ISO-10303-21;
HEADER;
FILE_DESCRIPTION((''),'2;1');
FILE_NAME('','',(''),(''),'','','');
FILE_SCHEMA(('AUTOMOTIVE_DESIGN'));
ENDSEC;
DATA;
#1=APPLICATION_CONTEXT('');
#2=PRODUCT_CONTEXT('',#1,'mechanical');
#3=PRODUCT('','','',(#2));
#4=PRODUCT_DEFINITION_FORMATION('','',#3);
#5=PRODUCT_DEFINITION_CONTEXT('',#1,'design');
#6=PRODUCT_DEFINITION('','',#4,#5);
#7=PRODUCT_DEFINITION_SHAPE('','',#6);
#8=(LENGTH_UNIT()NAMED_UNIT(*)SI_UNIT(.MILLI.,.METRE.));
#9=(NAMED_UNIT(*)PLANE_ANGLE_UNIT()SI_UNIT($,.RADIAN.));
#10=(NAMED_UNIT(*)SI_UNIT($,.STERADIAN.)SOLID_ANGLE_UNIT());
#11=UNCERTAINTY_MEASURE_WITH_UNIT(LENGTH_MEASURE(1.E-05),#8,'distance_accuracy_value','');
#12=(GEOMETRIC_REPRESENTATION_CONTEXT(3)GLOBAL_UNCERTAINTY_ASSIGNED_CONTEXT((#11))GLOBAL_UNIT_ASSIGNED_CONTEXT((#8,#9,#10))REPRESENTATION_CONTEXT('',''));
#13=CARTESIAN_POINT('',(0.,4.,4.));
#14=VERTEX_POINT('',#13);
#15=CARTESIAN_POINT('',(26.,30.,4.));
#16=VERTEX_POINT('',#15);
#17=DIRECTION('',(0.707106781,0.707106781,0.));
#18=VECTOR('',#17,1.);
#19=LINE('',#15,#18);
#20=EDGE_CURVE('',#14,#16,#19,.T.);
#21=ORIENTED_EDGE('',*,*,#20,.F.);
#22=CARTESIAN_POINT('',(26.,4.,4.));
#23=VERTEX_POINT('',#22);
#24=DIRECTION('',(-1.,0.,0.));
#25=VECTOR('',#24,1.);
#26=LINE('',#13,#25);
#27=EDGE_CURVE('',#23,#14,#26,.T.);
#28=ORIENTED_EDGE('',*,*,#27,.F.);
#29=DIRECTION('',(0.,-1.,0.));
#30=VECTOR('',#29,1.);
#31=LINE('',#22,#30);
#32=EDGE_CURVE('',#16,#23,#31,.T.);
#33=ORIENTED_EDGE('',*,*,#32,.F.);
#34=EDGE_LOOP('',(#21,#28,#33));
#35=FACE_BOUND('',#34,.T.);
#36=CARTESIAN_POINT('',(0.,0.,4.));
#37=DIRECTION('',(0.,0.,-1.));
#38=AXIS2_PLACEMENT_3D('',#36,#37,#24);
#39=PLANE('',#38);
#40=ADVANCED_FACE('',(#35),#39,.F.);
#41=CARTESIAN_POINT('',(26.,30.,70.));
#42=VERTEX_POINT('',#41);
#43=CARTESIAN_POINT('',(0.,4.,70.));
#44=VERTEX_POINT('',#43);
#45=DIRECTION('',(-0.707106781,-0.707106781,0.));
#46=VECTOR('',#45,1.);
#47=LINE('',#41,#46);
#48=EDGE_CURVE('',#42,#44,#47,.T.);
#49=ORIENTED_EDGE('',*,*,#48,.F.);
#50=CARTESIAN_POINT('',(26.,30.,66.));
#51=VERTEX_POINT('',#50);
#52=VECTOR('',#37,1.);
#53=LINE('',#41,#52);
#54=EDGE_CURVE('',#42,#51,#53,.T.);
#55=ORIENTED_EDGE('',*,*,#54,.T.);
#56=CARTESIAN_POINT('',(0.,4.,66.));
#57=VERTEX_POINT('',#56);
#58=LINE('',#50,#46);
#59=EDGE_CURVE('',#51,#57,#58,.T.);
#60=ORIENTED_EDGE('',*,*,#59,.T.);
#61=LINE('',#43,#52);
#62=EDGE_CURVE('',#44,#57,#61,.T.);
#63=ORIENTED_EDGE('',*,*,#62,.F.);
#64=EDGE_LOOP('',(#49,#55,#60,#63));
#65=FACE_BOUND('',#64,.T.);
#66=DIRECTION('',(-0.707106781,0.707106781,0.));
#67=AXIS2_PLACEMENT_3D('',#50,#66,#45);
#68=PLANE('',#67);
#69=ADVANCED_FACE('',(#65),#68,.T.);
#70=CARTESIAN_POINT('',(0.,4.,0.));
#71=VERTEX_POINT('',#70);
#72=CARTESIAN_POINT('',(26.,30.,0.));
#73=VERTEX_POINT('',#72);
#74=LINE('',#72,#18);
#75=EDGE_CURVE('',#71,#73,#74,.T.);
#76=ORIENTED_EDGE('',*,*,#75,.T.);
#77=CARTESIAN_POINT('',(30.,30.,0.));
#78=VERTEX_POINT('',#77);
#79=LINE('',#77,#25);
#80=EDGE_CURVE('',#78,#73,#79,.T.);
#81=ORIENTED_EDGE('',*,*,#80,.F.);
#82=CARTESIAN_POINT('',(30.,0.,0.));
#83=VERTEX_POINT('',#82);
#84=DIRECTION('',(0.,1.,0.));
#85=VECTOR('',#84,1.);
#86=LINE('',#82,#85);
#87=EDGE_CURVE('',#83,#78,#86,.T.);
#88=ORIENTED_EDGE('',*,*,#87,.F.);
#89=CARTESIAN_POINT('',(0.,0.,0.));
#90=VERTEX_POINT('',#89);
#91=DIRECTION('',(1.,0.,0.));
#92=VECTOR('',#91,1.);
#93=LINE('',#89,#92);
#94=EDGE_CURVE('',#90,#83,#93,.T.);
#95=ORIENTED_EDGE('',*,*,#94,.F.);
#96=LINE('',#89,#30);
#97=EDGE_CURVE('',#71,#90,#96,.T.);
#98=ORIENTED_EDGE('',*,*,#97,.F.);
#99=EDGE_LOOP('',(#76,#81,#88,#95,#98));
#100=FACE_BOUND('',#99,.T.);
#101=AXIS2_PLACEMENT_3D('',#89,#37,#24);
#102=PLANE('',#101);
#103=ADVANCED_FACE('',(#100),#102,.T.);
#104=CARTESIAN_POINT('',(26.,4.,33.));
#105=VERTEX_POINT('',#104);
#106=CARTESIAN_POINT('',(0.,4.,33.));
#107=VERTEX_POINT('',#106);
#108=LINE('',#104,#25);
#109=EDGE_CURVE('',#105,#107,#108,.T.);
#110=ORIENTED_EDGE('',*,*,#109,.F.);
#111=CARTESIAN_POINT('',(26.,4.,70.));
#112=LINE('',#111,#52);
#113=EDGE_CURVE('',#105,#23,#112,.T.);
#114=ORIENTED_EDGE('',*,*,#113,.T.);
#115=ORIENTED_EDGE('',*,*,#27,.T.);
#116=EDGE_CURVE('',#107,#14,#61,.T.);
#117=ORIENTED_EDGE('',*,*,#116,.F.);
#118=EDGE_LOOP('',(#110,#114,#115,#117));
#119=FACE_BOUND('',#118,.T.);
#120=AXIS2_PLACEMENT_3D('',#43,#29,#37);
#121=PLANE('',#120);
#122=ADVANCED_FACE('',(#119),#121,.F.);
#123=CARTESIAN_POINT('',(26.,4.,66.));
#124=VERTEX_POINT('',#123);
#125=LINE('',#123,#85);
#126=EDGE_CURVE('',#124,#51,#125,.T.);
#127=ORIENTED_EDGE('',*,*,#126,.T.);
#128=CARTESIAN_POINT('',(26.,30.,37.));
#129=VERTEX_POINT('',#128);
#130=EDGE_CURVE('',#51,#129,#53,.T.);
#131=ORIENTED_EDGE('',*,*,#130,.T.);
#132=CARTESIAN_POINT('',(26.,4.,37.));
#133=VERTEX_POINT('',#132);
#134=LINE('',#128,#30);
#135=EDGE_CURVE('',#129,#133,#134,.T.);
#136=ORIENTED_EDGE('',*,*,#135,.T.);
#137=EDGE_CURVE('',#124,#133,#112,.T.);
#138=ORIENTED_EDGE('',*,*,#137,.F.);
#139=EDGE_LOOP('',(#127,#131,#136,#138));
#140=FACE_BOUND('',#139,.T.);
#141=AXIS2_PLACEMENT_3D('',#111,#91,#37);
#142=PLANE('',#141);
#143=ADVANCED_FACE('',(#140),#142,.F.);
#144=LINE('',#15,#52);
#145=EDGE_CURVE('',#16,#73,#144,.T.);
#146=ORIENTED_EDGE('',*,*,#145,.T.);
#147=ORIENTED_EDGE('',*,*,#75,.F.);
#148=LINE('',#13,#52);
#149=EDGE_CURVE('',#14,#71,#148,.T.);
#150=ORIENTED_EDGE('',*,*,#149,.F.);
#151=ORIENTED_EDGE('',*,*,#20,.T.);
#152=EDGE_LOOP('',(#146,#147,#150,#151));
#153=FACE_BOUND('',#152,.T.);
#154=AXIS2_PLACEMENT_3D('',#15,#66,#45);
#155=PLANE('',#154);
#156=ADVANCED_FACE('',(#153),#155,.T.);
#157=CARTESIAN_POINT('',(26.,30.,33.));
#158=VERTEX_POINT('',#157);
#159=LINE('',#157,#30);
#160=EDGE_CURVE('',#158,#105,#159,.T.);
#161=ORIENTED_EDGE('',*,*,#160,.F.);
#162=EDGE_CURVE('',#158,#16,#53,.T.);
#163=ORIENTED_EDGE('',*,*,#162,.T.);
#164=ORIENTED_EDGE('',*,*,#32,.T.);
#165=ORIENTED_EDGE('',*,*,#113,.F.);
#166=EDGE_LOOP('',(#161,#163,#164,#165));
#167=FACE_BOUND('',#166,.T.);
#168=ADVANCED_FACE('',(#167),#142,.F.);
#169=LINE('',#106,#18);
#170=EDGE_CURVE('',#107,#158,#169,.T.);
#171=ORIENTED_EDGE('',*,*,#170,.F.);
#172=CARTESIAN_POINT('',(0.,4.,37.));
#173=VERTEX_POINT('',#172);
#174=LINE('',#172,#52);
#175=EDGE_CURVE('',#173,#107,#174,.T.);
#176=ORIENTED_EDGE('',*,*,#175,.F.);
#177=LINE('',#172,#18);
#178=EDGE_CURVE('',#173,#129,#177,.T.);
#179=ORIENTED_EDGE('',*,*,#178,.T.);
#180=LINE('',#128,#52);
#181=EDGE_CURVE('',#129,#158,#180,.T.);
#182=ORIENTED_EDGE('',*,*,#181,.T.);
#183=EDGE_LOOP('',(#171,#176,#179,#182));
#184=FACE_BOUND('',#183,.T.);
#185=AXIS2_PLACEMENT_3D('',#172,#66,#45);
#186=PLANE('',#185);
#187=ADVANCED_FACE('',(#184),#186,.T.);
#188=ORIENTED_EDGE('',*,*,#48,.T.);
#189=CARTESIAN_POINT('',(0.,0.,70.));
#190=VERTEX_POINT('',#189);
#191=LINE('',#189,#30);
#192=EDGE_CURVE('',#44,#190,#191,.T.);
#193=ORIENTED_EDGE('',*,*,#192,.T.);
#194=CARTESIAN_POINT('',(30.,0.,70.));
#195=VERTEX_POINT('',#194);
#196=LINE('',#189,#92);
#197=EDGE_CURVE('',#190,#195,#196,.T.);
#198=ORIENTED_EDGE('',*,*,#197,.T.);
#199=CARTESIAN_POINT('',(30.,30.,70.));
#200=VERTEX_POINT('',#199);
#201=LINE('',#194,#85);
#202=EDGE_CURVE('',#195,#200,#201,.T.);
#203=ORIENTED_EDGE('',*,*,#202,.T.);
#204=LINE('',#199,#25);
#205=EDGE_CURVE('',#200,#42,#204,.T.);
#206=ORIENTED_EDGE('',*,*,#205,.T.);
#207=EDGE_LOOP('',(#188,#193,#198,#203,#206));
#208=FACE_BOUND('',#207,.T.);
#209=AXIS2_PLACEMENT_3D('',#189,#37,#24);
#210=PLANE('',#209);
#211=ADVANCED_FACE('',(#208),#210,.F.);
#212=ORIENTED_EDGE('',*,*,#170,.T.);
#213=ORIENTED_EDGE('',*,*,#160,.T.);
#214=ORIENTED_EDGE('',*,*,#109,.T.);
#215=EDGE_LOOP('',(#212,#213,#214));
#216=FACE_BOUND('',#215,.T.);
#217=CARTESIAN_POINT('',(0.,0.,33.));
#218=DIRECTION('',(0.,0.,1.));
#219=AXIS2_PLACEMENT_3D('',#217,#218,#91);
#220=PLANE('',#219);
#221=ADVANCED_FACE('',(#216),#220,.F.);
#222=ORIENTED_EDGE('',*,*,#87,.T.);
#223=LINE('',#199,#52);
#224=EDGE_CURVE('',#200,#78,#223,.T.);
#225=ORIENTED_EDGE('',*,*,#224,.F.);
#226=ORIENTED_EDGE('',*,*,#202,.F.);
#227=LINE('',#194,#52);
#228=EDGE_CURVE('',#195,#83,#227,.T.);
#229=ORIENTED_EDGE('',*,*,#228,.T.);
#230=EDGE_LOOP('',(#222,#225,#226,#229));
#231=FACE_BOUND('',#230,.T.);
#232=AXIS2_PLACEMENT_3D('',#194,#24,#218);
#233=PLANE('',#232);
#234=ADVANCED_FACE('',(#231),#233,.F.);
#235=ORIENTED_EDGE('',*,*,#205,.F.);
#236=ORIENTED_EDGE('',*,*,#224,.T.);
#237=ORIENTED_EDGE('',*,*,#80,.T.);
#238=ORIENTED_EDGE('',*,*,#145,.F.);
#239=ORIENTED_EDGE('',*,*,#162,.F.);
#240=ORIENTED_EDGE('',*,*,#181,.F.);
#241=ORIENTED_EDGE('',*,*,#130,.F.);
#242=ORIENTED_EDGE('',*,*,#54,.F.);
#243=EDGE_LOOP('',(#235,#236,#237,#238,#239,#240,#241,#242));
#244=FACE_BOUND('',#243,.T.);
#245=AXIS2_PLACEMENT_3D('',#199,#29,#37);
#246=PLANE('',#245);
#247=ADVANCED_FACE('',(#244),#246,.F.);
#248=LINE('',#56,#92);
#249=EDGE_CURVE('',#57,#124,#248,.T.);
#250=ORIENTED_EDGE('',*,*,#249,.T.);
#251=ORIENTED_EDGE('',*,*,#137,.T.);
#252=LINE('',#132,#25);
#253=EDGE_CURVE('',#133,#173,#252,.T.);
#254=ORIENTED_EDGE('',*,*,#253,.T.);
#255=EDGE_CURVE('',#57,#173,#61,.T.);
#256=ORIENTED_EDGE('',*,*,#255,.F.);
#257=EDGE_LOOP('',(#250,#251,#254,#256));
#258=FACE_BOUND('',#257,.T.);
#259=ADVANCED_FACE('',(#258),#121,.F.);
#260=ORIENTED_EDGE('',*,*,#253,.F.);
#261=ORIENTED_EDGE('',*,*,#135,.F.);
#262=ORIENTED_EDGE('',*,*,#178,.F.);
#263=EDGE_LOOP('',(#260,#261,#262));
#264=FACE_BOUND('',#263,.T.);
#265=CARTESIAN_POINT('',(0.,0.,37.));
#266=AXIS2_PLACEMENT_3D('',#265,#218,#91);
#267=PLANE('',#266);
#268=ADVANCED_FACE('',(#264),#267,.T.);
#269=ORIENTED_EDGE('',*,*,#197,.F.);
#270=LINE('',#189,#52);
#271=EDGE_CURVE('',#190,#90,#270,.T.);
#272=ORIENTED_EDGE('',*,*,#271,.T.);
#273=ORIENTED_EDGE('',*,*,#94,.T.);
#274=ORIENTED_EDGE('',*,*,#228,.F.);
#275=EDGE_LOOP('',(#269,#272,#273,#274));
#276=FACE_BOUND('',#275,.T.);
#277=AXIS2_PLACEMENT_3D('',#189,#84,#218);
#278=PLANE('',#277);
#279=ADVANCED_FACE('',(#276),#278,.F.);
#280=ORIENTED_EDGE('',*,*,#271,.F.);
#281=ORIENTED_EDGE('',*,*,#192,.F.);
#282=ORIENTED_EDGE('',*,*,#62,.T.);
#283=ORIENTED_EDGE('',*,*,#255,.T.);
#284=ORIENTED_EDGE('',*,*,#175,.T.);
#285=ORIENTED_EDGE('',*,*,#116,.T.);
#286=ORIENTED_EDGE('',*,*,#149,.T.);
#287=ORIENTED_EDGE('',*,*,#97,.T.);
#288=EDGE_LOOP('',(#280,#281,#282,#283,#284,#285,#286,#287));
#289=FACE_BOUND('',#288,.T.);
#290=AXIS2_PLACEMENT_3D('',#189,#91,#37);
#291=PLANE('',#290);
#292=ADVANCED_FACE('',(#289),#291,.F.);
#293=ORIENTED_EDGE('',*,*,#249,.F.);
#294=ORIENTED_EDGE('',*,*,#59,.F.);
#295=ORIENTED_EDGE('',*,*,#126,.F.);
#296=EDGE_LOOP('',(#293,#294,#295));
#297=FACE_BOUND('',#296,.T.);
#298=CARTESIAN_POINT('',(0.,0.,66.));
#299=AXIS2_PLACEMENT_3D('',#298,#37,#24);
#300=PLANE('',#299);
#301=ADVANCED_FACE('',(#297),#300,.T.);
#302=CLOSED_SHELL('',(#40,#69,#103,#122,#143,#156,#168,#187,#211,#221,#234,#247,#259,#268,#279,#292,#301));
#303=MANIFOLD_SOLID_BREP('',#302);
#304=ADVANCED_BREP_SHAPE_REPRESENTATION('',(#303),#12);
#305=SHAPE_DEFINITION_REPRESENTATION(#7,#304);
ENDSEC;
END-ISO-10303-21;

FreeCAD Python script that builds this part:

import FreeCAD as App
import Part
import Sketcher
from FreeCAD import Vector


def add_polygon(sketch, points):
    """Adds a closed chain of lines whose ends are joined by coincident constraints."""
    first, n = sketch.GeometryCount, len(points)
    for a, b in zip(points, points[1:] + points[:1]):
        sketch.addGeometry(Part.LineSegment(App.Vector(*a, 0), App.Vector(*b, 0)), False)
    for i in range(n):
        sketch.addConstraint(Sketcher.Constraint("Coincident", first + i, 2, first + (i + 1) % n, 1))

doc = App.newDocument("Part")
body = doc.addObject("PartDesign::Body", "Body")

# Sketch on XY plane
sketch1 = body.newObject("Sketcher::SketchObject", "Sketch")
sketch1.AttachmentSupport = (doc.getObject("XY_Plane"), [""])
sketch1.MapMode = "FlatFace"
add_polygon(sketch1, [(0, 0), (30, 0), (30, 30), (26, 30), (26, 4), (0, 4)])  # lines 0-5
sketch1.addConstraint(Sketcher.Constraint("Horizontal", 0))
sketch1.addConstraint(Sketcher.Constraint("Vertical", 1))
sketch1.addConstraint(Sketcher.Constraint("Horizontal", 2))
sketch1.addConstraint(Sketcher.Constraint("Vertical", 3))
sketch1.addConstraint(Sketcher.Constraint("Horizontal", 4))
sketch1.addConstraint(Sketcher.Constraint("Vertical", 5))
sketch1.addConstraint(Sketcher.Constraint("Coincident", 5, 2, -1, 1))
sketch1.addConstraint(Sketcher.Constraint("Equal", 0, 1))
sketch1.addConstraint(Sketcher.Constraint("Equal", 4, 3))
sketch1.addConstraint(Sketcher.Constraint("DistanceX", 0, 1, 0, 2, 30.0))
sketch1.addConstraint(Sketcher.Constraint("DistanceX", 2, 2, 2, 1, 4.0))
pad1 = body.newObject("PartDesign::Pad", "Pad")
pad1.Profile = sketch1
pad1.Length = 70

# Sketch on XY plane
sketch2 = body.newObject("Sketcher::SketchObject", "Sketch001")
sketch2.AttachmentSupport = (doc.getObject("XY_Plane"), [""])
sketch2.MapMode = "FlatFace"
sketch2.AttachmentOffset = App.Placement(Vector(0, 0, 70), App.Rotation())
add_polygon(sketch2, [(26, 30), (0, 4), (26, 4)])  # lines 0-2
sketch2.addConstraint(Sketcher.Constraint("Horizontal", 1))
sketch2.addConstraint(Sketcher.Constraint("Vertical", 2))
sketch2.addConstraint(Sketcher.Constraint("PointOnObject", 0, 2, -2))
sketch2.addConstraint(Sketcher.Constraint("Equal", 1, 2))
sketch2.addConstraint(Sketcher.Constraint("DistanceX", 1, 1, 1, 2, 26.0))
sketch2.addConstraint(Sketcher.Constraint("DistanceY", -1, 1, 0, 2, 4.0))
pad2 = body.newObject("PartDesign::Pad", "Pad001")
pad2.Profile = sketch2
pad2.Length = 4
pad2.Reversed = True

# Sketch on XY plane
sketch3 = body.newObject("Sketcher::SketchObject", "Sketch002")
sketch3.AttachmentSupport = (doc.getObject("XY_Plane"), [""])
sketch3.MapMode = "FlatFace"
add_polygon(sketch3, [(0, 4), (26, 30), (26, 4)])  # lines 0-2
sketch3.addConstraint(Sketcher.Constraint("Vertical", 1))
sketch3.addConstraint(Sketcher.Constraint("Horizontal", 2))
sketch3.addConstraint(Sketcher.Constraint("PointOnObject", 2, 2, -2))
sketch3.addConstraint(Sketcher.Constraint("Equal", 2, 1))
sketch3.addConstraint(Sketcher.Constraint("DistanceX", 2, 2, 2, 1, 26.0))
sketch3.addConstraint(Sketcher.Constraint("DistanceY", -1, 1, 0, 2, 30.0))
pad3 = body.newObject("PartDesign::Pad", "Pad002")
pad3.Profile = sketch3
pad3.Length = 4

# Sketch on XY plane
sketch4 = body.newObject("Sketcher::SketchObject", "Sketch003")
sketch4.AttachmentSupport = (doc.getObject("XY_Plane"), [""])
sketch4.MapMode = "FlatFace"
sketch4.AttachmentOffset = App.Placement(Vector(0, 0, 35), App.Rotation())
add_polygon(sketch4, [(26, 30), (26, 4), (0, 4)])  # lines 0-2
sketch4.addConstraint(Sketcher.Constraint("Vertical", 0))
sketch4.addConstraint(Sketcher.Constraint("Horizontal", 1))
sketch4.addConstraint(Sketcher.Constraint("PointOnObject", 1, 2, -2))
sketch4.addConstraint(Sketcher.Constraint("Equal", 1, 0))
sketch4.addConstraint(Sketcher.Constraint("DistanceX", 1, 2, 1, 1, 26.0))
sketch4.addConstraint(Sketcher.Constraint("DistanceY", -1, 1, 0, 2, 4.0))
pad4 = body.newObject("PartDesign::Pad", "Pad003")
pad4.Profile = sketch4
pad4.Type = "TwoLengths"
pad4.Length = 2
pad4.Length2 = 2
pad4.Reversed = True

doc.recompute()
